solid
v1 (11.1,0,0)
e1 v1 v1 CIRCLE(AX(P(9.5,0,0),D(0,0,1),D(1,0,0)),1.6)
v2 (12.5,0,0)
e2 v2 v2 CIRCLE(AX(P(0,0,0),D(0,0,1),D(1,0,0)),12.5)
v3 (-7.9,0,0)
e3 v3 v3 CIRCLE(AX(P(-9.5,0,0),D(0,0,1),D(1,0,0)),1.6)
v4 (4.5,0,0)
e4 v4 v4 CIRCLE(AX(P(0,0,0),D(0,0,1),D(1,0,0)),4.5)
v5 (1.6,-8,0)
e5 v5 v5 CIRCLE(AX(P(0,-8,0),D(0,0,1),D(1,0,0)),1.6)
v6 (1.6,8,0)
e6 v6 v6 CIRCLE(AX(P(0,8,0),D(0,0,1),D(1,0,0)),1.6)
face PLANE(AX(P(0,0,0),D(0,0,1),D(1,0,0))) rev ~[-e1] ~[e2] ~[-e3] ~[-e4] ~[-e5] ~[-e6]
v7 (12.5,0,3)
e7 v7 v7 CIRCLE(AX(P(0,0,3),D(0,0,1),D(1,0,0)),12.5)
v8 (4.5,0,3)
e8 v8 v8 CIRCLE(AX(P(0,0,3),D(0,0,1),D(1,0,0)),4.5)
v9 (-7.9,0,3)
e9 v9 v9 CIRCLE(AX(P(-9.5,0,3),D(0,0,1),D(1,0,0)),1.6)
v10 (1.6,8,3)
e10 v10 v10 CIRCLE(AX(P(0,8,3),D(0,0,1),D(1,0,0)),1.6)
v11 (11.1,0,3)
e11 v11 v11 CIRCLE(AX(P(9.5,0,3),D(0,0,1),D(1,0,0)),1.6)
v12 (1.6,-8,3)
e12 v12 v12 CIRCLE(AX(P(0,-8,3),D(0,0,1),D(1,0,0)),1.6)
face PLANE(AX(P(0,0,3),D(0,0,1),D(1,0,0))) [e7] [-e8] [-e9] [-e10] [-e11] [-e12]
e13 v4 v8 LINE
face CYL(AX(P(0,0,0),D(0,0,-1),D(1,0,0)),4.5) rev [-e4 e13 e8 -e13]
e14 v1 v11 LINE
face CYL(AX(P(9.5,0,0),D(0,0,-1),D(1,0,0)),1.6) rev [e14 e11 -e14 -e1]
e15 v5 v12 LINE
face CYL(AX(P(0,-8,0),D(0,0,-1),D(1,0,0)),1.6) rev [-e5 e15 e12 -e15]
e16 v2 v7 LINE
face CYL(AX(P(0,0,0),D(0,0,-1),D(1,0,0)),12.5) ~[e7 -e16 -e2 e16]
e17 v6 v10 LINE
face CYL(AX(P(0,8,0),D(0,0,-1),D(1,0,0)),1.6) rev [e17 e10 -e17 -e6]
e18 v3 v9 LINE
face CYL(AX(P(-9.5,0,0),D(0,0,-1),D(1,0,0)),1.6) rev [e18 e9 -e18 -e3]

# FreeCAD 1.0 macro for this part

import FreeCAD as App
import Part
import Sketcher
from FreeCAD import Vector

doc = App.newDocument("Part")
params = doc.addObject("Spreadsheet::Sheet", "Params")
for row, (alias, value) in enumerate([
    ("sketch1_diameter", "25 mm"),
    ("sketch1_diameter2", "9 mm"),
    ("sketch1_diameter3", "3.2 mm"),
    ("pad1_length", "3 mm"),
], start=1):
    params.set(f"A{row}", alias)
    params.set(f"B{row}", "=" + value)
    params.setAlias(f"B{row}", alias)

body = doc.addObject("PartDesign::Body", "Body")

sketch1 = body.newObject("Sketcher::SketchObject", "Sketch")
sketch1.AttachmentSupport = (doc.getObject("XY_Plane"), [""])
sketch1.MapMode = "FlatFace"
sketch1.addGeometry([
    Part.Circle(Vector(0, 0, 0), Vector(0, 0, 1), 12.5),
    Part.Circle(Vector(-9.5, 0, 0), Vector(0, 0, 1), 1.6),
    Part.Circle(Vector(0, -8, 0), Vector(0, 0, 1), 1.6),
    Part.Circle(Vector(0, 0, 0), Vector(0, 0, 1), 4.5),
    Part.Circle(Vector(9.5, 0, 0), Vector(0, 0, 1), 1.6),
    Part.Circle(Vector(0, 8, 0), Vector(0, 0, 1), 1.6),
], False)
sketch1.addConstraint([
    Sketcher.Constraint("Coincident", 0, 3, -1, 1),
    Sketcher.Constraint("Coincident", 3, 3, -1, 1),
    Sketcher.Constraint("Equal", 1, 2),
    Sketcher.Constraint("Equal", 2, 4),
    Sketcher.Constraint("Equal", 4, 5),
    Sketcher.Constraint("Symmetric", 1, 3, 4, 3, -1, 1),
    Sketcher.Constraint("Symmetric", 2, 3, 5, 3, -1, 1),
    Sketcher.Constraint("PointOnObject", 1, 3, -1),
    Sketcher.Constraint("PointOnObject", 2, 3, -2),
    Sketcher.Constraint("Diameter", 0, 25.0),
    Sketcher.Constraint("Diameter", 3, 9.0),
    Sketcher.Constraint("Diameter", 1, 3.2),
    Sketcher.Constraint("DistanceY", 2, 3, -1, 1, 8.0),
    Sketcher.Constraint("DistanceX", 1, 3, 4, 3, 19.0),
])
sketch1.setExpression("Constraints[9]", "Params.sketch1_diameter")
sketch1.setExpression("Constraints[10]", "Params.sketch1_diameter2")
sketch1.setExpression("Constraints[11]", "Params.sketch1_diameter3")
pad1 = body.newObject("PartDesign::Pad", "Pad")
pad1.Profile = sketch1
pad1.setExpression("Length", "Params.pad1_length")

doc.recompute()
